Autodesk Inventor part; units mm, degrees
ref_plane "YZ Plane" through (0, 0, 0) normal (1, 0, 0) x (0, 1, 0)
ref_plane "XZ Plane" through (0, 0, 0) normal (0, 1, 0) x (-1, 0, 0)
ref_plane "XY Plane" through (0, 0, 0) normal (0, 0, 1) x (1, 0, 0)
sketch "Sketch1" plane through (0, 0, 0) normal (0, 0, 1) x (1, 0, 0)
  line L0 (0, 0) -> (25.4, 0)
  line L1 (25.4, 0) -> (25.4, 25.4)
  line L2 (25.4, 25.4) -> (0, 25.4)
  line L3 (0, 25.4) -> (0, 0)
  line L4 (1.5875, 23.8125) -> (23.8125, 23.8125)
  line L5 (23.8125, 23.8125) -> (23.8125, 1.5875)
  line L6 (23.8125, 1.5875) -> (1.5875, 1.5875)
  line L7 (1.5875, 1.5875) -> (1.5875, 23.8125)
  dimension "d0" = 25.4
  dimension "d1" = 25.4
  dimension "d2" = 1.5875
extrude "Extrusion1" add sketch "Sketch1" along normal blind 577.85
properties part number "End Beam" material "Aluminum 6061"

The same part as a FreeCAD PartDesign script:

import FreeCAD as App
import Part
import Sketcher
Q = App.Units.Quantity

doc = App.newDocument("Part")
body = doc.addObject("PartDesign::Body", "Body")

sketch1 = body.newObject("Sketcher::SketchObject", "Sketch")
sketch1.AttachmentSupport = (doc.getObject("XY_Plane"), [""])
sketch1.MapMode = "FlatFace"
sketch1.addGeometry(Part.LineSegment(App.Vector(0, 25.4, 0), App.Vector(0, 0, 0)), False)
sketch1.addGeometry(Part.LineSegment(App.Vector(0, 0, 0), App.Vector(25.4, 0, 0)), False)
sketch1.addGeometry(Part.LineSegment(App.Vector(25.4, 0, 0), App.Vector(25.4, 25.4, 0)), False)
sketch1.addGeometry(Part.LineSegment(App.Vector(25.4, 25.4, 0), App.Vector(0, 25.4, 0)), False)
sketch1.addGeometry(Part.LineSegment(App.Vector(1.5875, 1.5875, 0), App.Vector(1.5875, 23.8125, 0)), False)
sketch1.addGeometry(Part.LineSegment(App.Vector(1.5875, 23.8125, 0), App.Vector(23.8125, 23.8125, 0)), False)
sketch1.addGeometry(Part.LineSegment(App.Vector(23.8125, 23.8125, 0), App.Vector(23.8125, 1.5875, 0)), False)
sketch1.addGeometry(Part.LineSegment(App.Vector(23.8125, 1.5875, 0), App.Vector(1.5875, 1.5875, 0)), False)
sketch1.addConstraint(Sketcher.Constraint("Coincident", 0, 2, 1, 1))
sketch1.addConstraint(Sketcher.Constraint("Coincident", 1, 2, 2, 1))
sketch1.addConstraint(Sketcher.Constraint("Coincident", 2, 2, 3, 1))
sketch1.addConstraint(Sketcher.Constraint("Coincident", 3, 2, 0, 1))
sketch1.addConstraint(Sketcher.Constraint("Coincident", 4, 2, 5, 1))
sketch1.addConstraint(Sketcher.Constraint("Coincident", 5, 2, 6, 1))
sketch1.addConstraint(Sketcher.Constraint("Coincident", 6, 2, 7, 1))
sketch1.addConstraint(Sketcher.Constraint("Coincident", 7, 2, 4, 1))
sketch1.addConstraint(Sketcher.Constraint("Vertical", 0))
sketch1.addConstraint(Sketcher.Constraint("Horizontal", 1))
sketch1.addConstraint(Sketcher.Constraint("Vertical", 2))
sketch1.addConstraint(Sketcher.Constraint("Horizontal", 3))
sketch1.addConstraint(Sketcher.Constraint("Vertical", 4))
sketch1.addConstraint(Sketcher.Constraint("Horizontal", 5))
sketch1.addConstraint(Sketcher.Constraint("Vertical", 6))
sketch1.addConstraint(Sketcher.Constraint("Horizontal", 7))
sketch1.addConstraint(Sketcher.Constraint("Coincident", 0, 2, -1, 1))
sketch1.addConstraint(Sketcher.Constraint("Equal", 3, 0))
sketch1.addConstraint(Sketcher.Constraint("Equal", 7, 4))
sketch1.addConstraint(Sketcher.Constraint("DistanceX", 1, 1, 1, 2, Q("1 in")))
sketch1.addConstraint(Sketcher.Constraint("DistanceX", -1, 1, 4, 2, Q("0.0625 in")))
sketch1.addConstraint(Sketcher.Constraint("DistanceY", -1, 1, 6, 2, Q("0.0625 in")))
sketch1.addConstraint(Sketcher.Constraint("DistanceY", 4, 2, 3, 2, Q("0.0625 in")))
pad1 = body.newObject("PartDesign::Pad", "Pad")
pad1.Profile = sketch1
pad1.Length = Q("22.75 in")

doc.recompute()
